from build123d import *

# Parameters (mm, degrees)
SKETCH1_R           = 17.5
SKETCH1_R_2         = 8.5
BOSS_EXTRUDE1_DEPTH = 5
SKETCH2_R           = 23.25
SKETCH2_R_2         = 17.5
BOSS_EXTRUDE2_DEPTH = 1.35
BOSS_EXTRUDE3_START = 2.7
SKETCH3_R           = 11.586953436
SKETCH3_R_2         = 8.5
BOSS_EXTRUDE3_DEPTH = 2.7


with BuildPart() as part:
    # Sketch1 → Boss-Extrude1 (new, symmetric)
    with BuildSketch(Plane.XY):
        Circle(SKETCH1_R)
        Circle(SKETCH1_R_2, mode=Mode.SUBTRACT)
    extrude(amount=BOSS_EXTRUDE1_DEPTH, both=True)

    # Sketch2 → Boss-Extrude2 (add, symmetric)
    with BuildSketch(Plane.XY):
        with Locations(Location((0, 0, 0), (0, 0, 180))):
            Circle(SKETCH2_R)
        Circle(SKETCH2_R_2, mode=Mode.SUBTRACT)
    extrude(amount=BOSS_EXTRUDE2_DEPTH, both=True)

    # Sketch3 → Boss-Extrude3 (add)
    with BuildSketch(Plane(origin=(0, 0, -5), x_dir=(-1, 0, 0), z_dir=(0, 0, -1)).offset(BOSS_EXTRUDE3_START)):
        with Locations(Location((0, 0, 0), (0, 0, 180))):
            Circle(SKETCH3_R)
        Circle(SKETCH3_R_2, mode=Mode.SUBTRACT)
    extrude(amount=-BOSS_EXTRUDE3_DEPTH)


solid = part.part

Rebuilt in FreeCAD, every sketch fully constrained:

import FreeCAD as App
import Part
import Sketcher

doc = App.newDocument("Part")
body = doc.addObject("PartDesign::Body", "Body")

sketch1 = body.newObject("Sketcher::SketchObject", "Sketch")
sketch1.AttachmentSupport = (doc.getObject("XY_Plane"), [""])
sketch1.MapMode = "FlatFace"
sketch1.addGeometry([
    Part.Circle(App.Vector(0, 0, 0), App.Vector(0, 0, 1), 18),
    Part.Circle(App.Vector(0, 0, 0), App.Vector(0, 0, 1), 8),
], False)
sketch1.addConstraint([
    Sketcher.Constraint("Coincident", 0, 3, -1, 1),
    Sketcher.Constraint("Coincident", 1, 3, -1, 1),
    Sketcher.Constraint("Diameter", 0, 35.0),
    Sketcher.Constraint("Diameter", 1, 17.0),
])
pad1 = body.newObject("PartDesign::Pad", "Pad")
pad1.Profile = sketch1
pad1.Length = 10
pad1.Midplane = True

sketch2 = body.newObject("Sketcher::SketchObject", "Sketch001")
sketch2.AttachmentSupport = (doc.getObject("XY_Plane"), [""])
sketch2.MapMode = "FlatFace"
sketch2.addGeometry([
    Part.Circle(App.Vector(0, 0, 0), App.Vector(0, 0, 1), 23),
    Part.Circle(App.Vector(0, 0, 0), App.Vector(0, 0, 1), 18),
], False)
sketch2.addConstraint([
    Sketcher.Constraint("Coincident", 0, 3, -1, 1),
    Sketcher.Constraint("Coincident", 1, 3, -1, 1),
    Sketcher.Constraint("Diameter", 1, 35.0),
    Sketcher.Constraint("Diameter", 0, 46.5),
])
pad2 = body.newObject("PartDesign::Pad", "Pad001")
pad2.Profile = sketch2
pad2.Length = 2.7
pad2.Midplane = True

sketch3 = body.newObject("Sketcher::SketchObject", "Sketch002")
sketch3.AttachmentSupport = (doc.getObject("XY_Plane"), [""])
sketch3.MapMode = "FlatFace"
sketch3.AttachmentOffset = App.Placement(App.Vector(0, 0, -7.7), App.Rotation())
sketch3.addGeometry([
    Part.Circle(App.Vector(0, 0, 0), App.Vector(0, 0, 1), 12),
    Part.Circle(App.Vector(0, 0, 0), App.Vector(0, 0, 1), 8),
], False)
sketch3.addConstraint([
    Sketcher.Constraint("Coincident", 0, 3, -1, 1),
    Sketcher.Constraint("Coincident", 1, 3, -1, 1),
    Sketcher.Constraint("Diameter", 1, 17.0),
    Sketcher.Constraint("Diameter", 0, 23.173907),
])
pad3 = body.newObject("PartDesign::Pad", "Pad002")
pad3.Profile = sketch3
pad3.Length = 2.7

doc.recompute()
